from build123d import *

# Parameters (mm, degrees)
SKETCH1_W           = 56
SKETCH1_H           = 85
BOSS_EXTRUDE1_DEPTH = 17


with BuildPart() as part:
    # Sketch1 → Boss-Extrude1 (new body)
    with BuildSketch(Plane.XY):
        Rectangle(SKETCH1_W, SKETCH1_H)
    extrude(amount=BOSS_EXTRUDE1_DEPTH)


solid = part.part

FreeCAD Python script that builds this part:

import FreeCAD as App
import Part
import Sketcher
from FreeCAD import Vector

doc = App.newDocument("Part")
body = doc.addObject("PartDesign::Body", "Body")

# Sketch on XY plane
sketch1 = doc.addObject("Sketcher::SketchObject", "Sketch")
body.addObject(sketch1)
sketch1.AttachmentSupport = (doc.XY_Plane, [""])
sketch1.MapMode = "FlatFace"
sketch1.addGeometry(Part.LineSegment(Vector(-28, 42, 0), Vector(-28, -42, 0)), False)
sketch1.addGeometry(Part.LineSegment(Vector(-28, -42, 0), Vector(28, -42, 0)), False)
sketch1.addGeometry(Part.LineSegment(Vector(28, -42, 0), Vector(28, 42, 0)), False)
sketch1.addGeometry(Part.LineSegment(Vector(28, 42, 0), Vector(-28, 42, 0)), False)
sketch1.addConstraint(Sketcher.Constraint("Coincident", 0, 2, 1, 1))
sketch1.addConstraint(Sketcher.Constraint("Coincident", 1, 2, 2, 1))
sketch1.addConstraint(Sketcher.Constraint("Coincident", 2, 2, 3, 1))
sketch1.addConstraint(Sketcher.Constraint("Coincident", 3, 2, 0, 1))
sketch1.addConstraint(Sketcher.Constraint("Vertical", 0))
sketch1.addConstraint(Sketcher.Constraint("Horizontal", 1))
sketch1.addConstraint(Sketcher.Constraint("Vertical", 2))
sketch1.addConstraint(Sketcher.Constraint("Horizontal", 3))
sketch1.addConstraint(Sketcher.Constraint("Symmetric", 0, 2, 2, 2, -1, 1))
sketch1.addConstraint(Sketcher.Constraint("DistanceX", 1, 1, 1, 2, 56.0))
sketch1.addConstraint(Sketcher.Constraint("DistanceY", 0, 2, 0, 1, 85.0))
pad1 = doc.addObject("PartDesign::Pad", "Pad")
body.addObject(pad1)
pad1.Profile = sketch1
pad1.Length = 17

doc.recompute()
